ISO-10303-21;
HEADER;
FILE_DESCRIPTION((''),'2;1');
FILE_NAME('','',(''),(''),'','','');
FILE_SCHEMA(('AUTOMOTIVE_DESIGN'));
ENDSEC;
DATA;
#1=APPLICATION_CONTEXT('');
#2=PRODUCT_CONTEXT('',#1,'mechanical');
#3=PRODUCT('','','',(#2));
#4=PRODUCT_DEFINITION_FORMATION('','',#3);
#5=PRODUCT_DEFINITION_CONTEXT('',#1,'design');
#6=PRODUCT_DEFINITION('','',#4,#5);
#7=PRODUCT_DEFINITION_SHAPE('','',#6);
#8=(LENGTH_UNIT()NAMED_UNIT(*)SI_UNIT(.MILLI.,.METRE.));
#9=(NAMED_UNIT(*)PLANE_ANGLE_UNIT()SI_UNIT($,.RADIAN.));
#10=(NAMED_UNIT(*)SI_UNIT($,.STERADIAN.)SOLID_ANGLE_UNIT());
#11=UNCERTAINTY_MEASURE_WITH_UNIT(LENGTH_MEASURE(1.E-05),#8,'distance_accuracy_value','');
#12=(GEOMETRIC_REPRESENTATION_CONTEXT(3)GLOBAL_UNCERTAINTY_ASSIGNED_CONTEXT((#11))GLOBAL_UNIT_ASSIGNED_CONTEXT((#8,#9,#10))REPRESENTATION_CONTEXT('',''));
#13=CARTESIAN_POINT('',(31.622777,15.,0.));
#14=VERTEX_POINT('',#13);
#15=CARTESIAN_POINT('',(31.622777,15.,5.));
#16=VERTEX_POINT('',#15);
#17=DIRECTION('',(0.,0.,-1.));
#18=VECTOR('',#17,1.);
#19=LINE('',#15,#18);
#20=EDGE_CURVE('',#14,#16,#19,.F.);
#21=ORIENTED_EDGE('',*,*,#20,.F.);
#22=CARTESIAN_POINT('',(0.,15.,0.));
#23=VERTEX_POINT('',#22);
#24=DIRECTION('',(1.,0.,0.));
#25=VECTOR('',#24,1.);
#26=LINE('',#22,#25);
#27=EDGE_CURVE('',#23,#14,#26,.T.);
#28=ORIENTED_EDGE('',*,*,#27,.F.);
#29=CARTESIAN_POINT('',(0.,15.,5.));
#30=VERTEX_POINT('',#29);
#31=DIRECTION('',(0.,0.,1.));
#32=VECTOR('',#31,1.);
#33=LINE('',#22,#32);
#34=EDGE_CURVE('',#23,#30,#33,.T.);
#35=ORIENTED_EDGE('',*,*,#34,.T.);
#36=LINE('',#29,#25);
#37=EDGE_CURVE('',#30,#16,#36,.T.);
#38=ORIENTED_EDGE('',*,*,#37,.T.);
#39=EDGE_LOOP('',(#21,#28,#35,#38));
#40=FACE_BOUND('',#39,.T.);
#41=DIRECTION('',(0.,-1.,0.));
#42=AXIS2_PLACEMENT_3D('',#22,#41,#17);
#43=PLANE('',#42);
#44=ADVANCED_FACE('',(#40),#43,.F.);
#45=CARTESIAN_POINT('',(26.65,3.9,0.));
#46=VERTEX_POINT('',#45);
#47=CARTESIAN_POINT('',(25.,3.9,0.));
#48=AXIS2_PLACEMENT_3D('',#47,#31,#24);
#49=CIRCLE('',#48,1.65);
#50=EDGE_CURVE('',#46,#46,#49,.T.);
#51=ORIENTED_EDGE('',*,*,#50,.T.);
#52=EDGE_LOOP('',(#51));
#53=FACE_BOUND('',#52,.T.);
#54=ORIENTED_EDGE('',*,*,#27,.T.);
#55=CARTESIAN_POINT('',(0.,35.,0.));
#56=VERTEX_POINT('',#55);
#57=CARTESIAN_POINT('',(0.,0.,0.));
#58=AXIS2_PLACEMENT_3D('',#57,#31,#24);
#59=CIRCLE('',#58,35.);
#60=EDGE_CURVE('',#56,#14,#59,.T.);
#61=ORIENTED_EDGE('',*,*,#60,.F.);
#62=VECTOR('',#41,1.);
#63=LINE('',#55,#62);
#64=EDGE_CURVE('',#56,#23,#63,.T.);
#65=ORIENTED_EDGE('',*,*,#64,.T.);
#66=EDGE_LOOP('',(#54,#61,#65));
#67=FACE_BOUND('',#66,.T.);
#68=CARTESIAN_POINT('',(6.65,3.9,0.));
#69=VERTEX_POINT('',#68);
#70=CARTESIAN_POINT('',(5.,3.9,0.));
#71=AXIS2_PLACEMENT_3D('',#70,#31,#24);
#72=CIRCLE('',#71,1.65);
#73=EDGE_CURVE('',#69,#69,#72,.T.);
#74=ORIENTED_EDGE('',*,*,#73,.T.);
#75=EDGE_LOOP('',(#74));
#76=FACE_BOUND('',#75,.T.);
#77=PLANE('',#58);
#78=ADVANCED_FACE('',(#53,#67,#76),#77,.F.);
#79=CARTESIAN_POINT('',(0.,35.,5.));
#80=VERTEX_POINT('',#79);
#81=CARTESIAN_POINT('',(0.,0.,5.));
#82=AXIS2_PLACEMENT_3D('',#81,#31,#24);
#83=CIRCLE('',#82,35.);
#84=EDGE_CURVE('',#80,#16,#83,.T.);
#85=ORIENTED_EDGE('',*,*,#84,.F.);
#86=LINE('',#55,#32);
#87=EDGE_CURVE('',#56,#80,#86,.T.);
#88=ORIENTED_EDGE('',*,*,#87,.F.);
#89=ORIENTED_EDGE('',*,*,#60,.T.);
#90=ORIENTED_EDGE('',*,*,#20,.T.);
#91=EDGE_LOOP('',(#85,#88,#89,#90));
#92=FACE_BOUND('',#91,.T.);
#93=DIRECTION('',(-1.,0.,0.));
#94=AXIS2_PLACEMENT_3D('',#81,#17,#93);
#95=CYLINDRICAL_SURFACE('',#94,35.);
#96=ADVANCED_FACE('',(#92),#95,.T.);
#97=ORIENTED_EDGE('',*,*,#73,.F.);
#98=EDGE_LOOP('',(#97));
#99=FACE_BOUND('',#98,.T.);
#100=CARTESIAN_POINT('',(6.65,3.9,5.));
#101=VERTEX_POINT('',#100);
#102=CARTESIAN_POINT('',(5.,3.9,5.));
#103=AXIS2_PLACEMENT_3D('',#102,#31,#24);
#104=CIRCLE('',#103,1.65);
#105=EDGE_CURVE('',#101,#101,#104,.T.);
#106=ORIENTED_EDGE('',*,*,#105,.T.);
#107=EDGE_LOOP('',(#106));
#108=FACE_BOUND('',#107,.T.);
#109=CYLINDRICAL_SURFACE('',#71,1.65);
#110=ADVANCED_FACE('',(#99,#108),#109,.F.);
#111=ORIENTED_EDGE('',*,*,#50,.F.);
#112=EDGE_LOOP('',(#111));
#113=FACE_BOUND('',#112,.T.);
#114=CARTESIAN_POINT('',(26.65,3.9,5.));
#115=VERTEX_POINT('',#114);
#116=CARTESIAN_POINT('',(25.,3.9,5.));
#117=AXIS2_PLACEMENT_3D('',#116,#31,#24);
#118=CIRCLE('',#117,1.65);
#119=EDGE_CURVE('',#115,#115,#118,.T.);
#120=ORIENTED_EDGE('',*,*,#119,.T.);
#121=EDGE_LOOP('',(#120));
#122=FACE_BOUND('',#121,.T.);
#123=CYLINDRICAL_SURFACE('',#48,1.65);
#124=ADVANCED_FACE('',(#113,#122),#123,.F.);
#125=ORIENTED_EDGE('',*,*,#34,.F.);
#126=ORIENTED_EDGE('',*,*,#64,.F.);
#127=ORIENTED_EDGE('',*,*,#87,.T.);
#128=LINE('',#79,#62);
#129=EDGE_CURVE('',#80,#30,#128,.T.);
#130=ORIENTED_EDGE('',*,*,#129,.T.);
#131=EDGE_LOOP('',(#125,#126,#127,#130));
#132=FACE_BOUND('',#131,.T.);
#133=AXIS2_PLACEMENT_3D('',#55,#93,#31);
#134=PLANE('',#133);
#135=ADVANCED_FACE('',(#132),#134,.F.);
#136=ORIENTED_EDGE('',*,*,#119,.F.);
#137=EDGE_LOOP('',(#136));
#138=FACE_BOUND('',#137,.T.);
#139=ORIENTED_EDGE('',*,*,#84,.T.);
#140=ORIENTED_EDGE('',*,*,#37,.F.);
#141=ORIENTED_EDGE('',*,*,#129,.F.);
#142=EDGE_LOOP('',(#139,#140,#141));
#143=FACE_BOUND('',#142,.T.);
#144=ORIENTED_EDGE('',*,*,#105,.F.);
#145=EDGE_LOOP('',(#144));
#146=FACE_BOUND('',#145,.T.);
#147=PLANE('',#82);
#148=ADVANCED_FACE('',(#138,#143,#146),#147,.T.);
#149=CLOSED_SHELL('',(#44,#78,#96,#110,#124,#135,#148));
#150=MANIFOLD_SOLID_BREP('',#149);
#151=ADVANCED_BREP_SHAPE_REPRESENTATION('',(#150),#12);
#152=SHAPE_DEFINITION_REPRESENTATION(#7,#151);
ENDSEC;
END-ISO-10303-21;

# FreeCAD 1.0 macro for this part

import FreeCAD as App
import Part
import Sketcher

V = App.Vector


def add_polygon(sketch, points):
    """Adds a closed chain of lines whose ends are joined by coincident constraints."""
    first, n = sketch.GeometryCount, len(points)
    for a, b in zip(points, points[1:] + points[:1]):
        sketch.addGeometry(Part.LineSegment(App.Vector(*a, 0), App.Vector(*b, 0)), False)
    for i in range(n):
        sketch.addConstraint(Sketcher.Constraint("Coincident", first + i, 2, first + (i + 1) % n, 1))

doc = App.newDocument("Part")
body = doc.addObject("PartDesign::Body", "Body")

sketch1 = doc.addObject("Sketcher::SketchObject", "Sketch")
body.addObject(sketch1)
sketch1.AttachmentSupport = (doc.XY_Plane, [""])
sketch1.MapMode = "FlatFace"
sketch1.addGeometry(Part.Circle(V(0, 0, 0), V(0, 0, 1), 35), False)
sketch1.addConstraint([
    Sketcher.Constraint("Coincident", 0, 3, -1, 1),
    Sketcher.Constraint("Diameter", 0, 70.0),
])
pad1 = doc.addObject("PartDesign::Pad", "Pad")
body.addObject(pad1)
pad1.Profile = sketch1
pad1.Length = 5

sketch2 = doc.addObject("Sketcher::SketchObject", "Sketch001")
body.addObject(sketch2)
sketch2.AttachmentSupport = (doc.XY_Plane, [""])
sketch2.MapMode = "FlatFace"
sketch2.AttachmentOffset = App.Placement(V(0, 0, 5), App.Rotation())
sketch2.addGeometry(Part.Circle(V(5, 3.9, 0), V(0, 0, 1), 1.6), False)
sketch2.addGeometry(Part.Circle(V(25, 3.9, 0), V(0, 0, 1), 1.6), False)
add_polygon(sketch2, [(0, 35), (0, 15), (60, 15), (60, 35)])
sketch2.addConstraint([
    Sketcher.Constraint("Vertical", 2),
    Sketcher.Constraint("Horizontal", 3),
    Sketcher.Constraint("Vertical", 4),
    Sketcher.Constraint("Horizontal", 5),
    Sketcher.Constraint("Equal", 0, 1),
    Sketcher.Constraint("PointOnObject", 2, 2, -2),
    Sketcher.Constraint("Horizontal", 0, 3, 1, 3),
    Sketcher.Constraint("Diameter", 0, 3.3),
    Sketcher.Constraint("DistanceX", 3, 1, 3, 2, 60.0),
    Sketcher.Constraint("DistanceY", 2, 2, 2, 1, 20.0),
    Sketcher.Constraint("DistanceX", -1, 1, 0, 3, 5.0),
    Sketcher.Constraint("DistanceX", -1, 1, 1, 3, 25.0),
    Sketcher.Constraint("DistanceY", -1, 1, 2, 2, 15.0),
    Sketcher.Constraint("DistanceY", -1, 1, 0, 3, 3.9),
])
pocket1 = doc.addObject("PartDesign::Pocket", "Pocket")
body.addObject(pocket1)
pocket1.Profile = sketch2
pocket1.Length = 5

doc.recompute()
